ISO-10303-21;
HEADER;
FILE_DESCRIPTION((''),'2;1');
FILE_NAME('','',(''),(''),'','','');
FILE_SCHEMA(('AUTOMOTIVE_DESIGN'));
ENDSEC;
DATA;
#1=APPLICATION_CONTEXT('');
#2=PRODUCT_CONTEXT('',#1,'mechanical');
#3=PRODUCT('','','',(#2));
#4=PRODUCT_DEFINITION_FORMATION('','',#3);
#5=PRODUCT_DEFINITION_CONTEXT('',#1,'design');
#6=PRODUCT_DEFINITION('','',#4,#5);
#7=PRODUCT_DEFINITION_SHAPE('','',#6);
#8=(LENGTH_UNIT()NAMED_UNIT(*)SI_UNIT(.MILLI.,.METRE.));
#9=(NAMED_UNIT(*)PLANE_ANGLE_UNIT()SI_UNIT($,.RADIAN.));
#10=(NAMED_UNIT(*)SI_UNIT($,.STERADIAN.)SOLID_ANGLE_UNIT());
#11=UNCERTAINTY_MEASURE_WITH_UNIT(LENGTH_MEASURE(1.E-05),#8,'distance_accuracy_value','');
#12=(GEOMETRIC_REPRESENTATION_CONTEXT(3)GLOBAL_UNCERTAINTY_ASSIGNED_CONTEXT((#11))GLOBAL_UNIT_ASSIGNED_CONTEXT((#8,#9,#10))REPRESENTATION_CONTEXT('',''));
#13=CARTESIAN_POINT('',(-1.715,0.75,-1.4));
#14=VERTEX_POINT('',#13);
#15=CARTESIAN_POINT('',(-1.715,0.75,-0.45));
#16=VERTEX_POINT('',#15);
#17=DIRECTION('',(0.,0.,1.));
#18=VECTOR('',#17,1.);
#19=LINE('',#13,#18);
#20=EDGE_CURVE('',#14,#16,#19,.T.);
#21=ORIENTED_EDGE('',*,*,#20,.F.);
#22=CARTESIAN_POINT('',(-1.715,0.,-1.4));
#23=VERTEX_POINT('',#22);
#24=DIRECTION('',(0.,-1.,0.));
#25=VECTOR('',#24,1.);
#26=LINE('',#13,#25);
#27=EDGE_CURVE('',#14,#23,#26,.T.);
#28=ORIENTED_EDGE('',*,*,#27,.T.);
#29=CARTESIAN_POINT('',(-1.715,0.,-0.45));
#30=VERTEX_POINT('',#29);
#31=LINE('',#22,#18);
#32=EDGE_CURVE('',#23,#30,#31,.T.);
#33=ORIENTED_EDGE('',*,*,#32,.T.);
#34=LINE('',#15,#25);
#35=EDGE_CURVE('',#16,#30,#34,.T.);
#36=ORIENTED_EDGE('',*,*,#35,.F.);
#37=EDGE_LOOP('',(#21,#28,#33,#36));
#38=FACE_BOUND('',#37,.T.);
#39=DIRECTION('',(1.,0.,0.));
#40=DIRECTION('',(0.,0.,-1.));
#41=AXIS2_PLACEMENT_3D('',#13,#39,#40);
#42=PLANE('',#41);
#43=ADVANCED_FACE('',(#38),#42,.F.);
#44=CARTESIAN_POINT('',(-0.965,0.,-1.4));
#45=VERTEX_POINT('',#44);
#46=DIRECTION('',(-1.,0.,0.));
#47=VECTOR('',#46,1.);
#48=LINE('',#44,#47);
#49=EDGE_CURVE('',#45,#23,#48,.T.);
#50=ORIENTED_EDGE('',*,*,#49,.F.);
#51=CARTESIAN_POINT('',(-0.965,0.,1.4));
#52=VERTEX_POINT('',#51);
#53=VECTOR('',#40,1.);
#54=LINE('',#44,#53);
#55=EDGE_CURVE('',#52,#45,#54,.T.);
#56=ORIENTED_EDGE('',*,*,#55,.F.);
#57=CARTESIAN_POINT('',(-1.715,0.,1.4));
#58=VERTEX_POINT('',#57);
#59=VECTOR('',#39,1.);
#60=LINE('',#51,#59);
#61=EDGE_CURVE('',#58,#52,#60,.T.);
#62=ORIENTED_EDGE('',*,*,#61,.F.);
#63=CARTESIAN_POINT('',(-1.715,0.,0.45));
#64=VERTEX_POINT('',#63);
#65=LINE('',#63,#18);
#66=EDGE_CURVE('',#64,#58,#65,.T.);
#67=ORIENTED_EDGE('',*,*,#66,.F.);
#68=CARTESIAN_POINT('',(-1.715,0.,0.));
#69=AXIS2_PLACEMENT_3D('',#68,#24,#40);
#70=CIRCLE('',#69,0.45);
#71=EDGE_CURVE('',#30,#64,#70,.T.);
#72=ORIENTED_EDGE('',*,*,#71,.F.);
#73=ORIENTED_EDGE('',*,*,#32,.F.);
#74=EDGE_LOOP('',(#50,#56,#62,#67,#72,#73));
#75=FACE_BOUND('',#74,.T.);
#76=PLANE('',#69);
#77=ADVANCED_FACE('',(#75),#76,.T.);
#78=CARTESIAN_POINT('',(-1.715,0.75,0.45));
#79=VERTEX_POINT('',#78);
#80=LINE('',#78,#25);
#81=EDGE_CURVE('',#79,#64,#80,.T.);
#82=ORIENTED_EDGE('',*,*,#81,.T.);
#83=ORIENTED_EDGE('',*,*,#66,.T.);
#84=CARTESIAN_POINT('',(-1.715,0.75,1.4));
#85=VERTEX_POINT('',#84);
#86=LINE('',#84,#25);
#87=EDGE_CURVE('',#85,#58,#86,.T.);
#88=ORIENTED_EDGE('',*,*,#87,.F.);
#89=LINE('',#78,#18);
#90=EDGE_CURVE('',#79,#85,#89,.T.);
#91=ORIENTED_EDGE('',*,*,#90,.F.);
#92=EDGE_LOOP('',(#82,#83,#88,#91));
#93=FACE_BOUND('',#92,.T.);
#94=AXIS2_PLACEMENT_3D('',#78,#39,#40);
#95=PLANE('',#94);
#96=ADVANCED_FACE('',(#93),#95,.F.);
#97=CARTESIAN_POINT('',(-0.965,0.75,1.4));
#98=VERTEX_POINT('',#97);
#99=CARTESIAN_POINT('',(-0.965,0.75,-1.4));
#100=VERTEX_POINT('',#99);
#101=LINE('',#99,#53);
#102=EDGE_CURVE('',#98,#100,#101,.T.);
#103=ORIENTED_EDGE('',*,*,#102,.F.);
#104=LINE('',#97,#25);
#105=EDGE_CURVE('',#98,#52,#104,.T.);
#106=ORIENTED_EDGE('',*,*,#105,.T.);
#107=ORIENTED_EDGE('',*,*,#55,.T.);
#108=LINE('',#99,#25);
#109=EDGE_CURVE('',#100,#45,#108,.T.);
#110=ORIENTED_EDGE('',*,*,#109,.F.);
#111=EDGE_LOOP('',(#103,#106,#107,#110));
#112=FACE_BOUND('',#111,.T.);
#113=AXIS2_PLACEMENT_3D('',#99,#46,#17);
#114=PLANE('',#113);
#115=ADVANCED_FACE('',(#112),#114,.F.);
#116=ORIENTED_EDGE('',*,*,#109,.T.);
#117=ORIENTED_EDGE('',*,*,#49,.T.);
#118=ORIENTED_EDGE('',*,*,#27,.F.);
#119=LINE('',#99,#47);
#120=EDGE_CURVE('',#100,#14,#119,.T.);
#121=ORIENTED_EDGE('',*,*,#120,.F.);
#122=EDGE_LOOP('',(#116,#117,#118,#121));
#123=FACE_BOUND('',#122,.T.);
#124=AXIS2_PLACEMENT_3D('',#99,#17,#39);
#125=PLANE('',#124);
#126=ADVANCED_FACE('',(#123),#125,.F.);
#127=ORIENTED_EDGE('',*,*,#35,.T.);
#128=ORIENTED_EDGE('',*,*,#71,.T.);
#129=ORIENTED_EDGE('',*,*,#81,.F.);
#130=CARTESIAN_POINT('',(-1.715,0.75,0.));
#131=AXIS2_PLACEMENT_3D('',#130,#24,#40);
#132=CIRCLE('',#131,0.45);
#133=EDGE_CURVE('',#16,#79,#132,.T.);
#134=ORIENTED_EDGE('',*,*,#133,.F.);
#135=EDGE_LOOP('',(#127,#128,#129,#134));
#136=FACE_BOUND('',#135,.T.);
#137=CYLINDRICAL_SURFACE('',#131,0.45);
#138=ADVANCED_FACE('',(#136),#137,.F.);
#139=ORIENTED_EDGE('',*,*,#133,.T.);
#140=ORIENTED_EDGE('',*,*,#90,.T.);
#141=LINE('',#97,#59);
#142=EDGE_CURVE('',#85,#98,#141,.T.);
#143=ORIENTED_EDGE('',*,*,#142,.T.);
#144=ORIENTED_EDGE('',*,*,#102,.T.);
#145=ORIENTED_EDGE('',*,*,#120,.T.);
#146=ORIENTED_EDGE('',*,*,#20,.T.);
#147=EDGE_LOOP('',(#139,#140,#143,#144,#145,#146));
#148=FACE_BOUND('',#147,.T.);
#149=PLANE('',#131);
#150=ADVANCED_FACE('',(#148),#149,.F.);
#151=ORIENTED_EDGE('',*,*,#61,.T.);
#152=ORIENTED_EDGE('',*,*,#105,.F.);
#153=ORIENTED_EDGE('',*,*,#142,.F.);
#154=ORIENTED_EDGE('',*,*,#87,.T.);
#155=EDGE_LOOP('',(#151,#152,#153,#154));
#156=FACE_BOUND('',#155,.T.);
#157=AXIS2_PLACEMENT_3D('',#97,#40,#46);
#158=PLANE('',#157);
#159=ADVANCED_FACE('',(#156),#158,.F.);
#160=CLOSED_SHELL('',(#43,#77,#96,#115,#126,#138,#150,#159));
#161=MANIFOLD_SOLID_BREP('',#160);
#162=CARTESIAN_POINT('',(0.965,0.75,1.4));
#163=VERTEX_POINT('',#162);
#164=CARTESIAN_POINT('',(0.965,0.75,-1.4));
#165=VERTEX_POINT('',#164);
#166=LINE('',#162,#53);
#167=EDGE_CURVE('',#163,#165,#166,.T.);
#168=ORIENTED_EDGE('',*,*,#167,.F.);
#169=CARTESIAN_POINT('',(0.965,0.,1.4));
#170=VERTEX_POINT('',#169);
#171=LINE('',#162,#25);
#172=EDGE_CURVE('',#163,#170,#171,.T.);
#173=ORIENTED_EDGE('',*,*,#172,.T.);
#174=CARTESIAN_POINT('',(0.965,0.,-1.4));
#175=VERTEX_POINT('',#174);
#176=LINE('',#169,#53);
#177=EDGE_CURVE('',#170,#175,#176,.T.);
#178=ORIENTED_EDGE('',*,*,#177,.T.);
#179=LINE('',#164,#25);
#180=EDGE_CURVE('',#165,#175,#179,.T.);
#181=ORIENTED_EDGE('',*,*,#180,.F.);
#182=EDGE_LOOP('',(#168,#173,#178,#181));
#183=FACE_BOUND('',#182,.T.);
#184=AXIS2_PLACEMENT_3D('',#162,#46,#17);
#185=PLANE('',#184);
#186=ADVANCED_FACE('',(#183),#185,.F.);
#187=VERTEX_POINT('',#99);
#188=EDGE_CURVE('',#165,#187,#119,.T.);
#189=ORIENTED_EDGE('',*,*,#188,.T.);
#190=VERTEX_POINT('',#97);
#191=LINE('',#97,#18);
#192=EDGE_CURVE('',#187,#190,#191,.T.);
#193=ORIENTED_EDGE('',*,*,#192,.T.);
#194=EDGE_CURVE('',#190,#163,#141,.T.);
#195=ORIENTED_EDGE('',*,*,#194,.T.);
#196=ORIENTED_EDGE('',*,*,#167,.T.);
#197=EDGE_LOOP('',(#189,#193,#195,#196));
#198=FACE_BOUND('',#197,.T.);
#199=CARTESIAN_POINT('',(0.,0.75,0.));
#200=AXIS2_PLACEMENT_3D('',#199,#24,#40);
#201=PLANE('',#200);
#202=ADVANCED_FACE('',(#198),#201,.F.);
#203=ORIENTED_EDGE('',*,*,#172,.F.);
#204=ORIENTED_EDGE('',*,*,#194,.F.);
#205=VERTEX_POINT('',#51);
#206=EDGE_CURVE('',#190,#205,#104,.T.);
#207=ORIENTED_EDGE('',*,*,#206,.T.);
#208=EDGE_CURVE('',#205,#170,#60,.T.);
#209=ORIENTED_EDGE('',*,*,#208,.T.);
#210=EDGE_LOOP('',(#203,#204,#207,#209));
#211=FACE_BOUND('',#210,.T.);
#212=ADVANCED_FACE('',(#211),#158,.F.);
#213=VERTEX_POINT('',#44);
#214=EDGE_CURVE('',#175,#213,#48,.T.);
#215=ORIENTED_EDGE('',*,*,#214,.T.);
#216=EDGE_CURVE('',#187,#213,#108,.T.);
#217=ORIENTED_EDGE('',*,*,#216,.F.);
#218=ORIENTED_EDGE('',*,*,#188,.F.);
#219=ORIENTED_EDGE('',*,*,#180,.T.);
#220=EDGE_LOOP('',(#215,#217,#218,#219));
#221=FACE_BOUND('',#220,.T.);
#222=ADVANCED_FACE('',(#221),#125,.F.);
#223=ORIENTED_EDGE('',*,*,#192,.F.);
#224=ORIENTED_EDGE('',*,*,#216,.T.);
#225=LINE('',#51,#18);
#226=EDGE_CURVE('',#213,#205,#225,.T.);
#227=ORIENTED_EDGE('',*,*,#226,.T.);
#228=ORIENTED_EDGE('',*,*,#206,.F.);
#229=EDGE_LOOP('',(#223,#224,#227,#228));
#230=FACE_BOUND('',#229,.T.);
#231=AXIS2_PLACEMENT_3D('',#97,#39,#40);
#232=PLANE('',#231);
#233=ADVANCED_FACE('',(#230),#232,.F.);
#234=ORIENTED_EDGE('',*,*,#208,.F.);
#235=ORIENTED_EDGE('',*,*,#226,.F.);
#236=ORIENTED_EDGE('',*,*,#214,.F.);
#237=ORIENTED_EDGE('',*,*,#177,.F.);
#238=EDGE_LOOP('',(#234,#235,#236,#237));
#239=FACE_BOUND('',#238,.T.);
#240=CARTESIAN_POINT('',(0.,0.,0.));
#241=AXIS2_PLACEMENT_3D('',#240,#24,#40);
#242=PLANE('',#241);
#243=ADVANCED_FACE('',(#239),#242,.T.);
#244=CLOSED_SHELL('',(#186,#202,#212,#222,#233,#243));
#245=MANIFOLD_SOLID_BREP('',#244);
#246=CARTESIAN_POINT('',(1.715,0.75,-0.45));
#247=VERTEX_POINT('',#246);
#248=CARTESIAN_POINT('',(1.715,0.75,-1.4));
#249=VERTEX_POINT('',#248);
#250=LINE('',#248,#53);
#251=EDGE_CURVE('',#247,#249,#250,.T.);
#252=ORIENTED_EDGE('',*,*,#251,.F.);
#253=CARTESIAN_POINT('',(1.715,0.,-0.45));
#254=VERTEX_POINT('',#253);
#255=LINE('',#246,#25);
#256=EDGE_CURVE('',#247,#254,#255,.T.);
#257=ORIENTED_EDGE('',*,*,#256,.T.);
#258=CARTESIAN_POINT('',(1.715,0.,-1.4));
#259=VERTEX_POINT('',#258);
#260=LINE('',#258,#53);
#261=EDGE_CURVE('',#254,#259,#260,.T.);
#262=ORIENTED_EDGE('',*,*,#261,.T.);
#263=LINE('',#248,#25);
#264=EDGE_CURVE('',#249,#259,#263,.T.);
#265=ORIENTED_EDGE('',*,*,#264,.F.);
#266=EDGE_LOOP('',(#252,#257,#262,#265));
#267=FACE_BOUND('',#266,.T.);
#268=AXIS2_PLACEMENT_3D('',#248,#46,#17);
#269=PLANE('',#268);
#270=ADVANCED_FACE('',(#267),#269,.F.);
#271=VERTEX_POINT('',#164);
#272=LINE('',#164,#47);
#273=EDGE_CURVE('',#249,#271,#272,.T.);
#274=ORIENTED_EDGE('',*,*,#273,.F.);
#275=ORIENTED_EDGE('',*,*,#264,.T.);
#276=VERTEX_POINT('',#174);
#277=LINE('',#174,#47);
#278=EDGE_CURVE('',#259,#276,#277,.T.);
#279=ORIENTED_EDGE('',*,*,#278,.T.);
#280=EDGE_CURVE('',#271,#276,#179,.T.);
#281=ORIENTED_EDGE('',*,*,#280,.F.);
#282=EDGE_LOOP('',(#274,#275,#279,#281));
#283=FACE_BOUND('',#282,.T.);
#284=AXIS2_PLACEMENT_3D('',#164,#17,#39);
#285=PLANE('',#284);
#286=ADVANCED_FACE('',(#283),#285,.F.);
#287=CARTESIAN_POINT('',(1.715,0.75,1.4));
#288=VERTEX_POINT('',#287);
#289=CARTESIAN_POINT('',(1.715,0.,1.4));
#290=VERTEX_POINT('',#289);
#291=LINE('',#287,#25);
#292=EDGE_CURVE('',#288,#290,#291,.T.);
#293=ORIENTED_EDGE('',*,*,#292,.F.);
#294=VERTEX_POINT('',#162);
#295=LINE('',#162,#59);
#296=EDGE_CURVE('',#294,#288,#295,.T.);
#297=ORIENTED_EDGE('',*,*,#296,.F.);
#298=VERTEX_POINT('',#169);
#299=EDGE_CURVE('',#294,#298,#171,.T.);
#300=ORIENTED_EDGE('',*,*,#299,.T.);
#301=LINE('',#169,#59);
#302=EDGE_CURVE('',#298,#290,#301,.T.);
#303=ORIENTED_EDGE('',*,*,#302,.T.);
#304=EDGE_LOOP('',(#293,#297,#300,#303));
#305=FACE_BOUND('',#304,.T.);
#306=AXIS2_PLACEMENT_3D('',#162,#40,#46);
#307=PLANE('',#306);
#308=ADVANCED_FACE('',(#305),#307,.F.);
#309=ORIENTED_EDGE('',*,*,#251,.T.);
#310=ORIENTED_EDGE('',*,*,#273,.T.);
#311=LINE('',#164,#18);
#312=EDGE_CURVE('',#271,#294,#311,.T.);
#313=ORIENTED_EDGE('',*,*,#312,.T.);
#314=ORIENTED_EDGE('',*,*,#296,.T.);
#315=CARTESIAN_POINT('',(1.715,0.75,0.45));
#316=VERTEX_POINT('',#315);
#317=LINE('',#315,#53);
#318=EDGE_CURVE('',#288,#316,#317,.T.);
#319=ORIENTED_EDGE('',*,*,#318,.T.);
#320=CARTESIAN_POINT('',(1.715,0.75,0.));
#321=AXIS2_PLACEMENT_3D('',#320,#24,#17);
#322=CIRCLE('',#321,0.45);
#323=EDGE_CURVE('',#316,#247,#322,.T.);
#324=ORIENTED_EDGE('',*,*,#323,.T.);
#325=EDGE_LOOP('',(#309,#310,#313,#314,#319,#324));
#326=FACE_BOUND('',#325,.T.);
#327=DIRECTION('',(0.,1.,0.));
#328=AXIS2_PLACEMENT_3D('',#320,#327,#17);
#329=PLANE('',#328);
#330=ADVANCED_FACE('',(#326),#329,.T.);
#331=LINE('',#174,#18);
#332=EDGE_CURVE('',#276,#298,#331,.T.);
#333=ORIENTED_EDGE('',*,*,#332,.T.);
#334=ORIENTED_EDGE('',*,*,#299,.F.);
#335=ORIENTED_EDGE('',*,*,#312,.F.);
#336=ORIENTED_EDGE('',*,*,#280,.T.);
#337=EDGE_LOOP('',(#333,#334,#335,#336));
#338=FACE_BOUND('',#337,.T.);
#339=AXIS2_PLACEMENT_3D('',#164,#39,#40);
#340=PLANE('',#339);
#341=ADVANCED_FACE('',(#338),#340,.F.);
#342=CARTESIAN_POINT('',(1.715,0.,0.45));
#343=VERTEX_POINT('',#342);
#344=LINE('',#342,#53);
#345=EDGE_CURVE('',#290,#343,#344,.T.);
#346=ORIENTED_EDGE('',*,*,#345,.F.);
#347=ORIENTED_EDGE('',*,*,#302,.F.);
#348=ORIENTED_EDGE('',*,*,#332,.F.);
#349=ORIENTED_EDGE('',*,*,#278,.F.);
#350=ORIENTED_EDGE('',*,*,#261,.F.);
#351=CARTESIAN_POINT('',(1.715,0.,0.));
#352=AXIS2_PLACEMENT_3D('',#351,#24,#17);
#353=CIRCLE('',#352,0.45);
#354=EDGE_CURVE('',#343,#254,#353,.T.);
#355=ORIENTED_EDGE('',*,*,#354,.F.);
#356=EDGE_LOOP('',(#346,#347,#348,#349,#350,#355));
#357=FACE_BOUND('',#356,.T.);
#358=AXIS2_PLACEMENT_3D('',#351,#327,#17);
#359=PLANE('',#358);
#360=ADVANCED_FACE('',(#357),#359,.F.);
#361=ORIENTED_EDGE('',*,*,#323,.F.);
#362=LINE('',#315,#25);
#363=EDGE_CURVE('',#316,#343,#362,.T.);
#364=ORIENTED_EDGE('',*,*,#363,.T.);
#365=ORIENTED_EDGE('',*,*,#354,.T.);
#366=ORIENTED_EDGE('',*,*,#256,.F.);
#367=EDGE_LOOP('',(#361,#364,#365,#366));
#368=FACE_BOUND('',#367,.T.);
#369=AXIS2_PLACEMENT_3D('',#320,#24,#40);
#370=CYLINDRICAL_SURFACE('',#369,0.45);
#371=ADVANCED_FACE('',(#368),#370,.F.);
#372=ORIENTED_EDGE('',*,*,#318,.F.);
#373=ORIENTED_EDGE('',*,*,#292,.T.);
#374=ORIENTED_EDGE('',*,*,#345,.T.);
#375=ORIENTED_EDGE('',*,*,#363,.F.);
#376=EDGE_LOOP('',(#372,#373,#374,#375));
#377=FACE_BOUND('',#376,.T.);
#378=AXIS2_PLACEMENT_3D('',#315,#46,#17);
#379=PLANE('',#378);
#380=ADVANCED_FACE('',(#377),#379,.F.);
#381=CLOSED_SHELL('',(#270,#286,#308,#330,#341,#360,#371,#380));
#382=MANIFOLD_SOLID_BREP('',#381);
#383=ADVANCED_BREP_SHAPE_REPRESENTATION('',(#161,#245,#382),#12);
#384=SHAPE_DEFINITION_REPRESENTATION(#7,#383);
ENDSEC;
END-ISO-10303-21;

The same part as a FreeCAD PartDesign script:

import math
import FreeCAD as App
import Part
import Sketcher

V = App.Vector
Q = App.Units.Quantity

doc = App.newDocument("Part")
body = doc.addObject("PartDesign::Body", "Body")

# Sketch on XZ plane
sketch1 = doc.addObject("Sketcher::SketchObject", "Sketch")
body.addObject(sketch1)
sketch1.AttachmentSupport = (doc.XZ_Plane, [""])
sketch1.MapMode = "FlatFace"
sketch1.addGeometry([
    Part.LineSegment(V(-0.965, -1.4, 0), V(-0.965, 1.4, 0)),
    Part.LineSegment(V(-0.965, 1.4, 0), V(0.965, 1.4, 0)),
    Part.LineSegment(V(0.965, 1.4, 0), V(0.965, -1.4, 0)),
    Part.LineSegment(V(0.965, -1.4, 0), V(-0.965, -1.4, 0)),
], False)
sketch1.addConstraint([
    Sketcher.Constraint("Coincident", 0, 2, 1, 1),
    Sketcher.Constraint("Coincident", 1, 2, 2, 1),
    Sketcher.Constraint("Coincident", 2, 2, 3, 1),
    Sketcher.Constraint("Coincident", 3, 2, 0, 1),
    Sketcher.Constraint("Vertical", 0),
    Sketcher.Constraint("Horizontal", 1),
    Sketcher.Constraint("Vertical", 2),
    Sketcher.Constraint("Horizontal", 3),
    Sketcher.Constraint("Symmetric", 0, 2, 2, 2, -1, 1),
    Sketcher.Constraint("DistanceY", 0, 1, 0, 2, Q("2.8 mm")),
    Sketcher.Constraint("DistanceX", 1, 1, 1, 2, Q("1.93 mm")),
])
pad1 = doc.addObject("PartDesign::Pad", "Pad")
body.addObject(pad1)
pad1.Profile = sketch1
pad1.Length = 0.75
pad1.Reversed = True
body2 = doc.addObject("PartDesign::Body", "Body001")

# Sketch on XZ plane
sketch2 = doc.addObject("Sketcher::SketchObject", "Sketch001")
body2.addObject(sketch2)
sketch2.AttachmentSupport = (doc.getObject("XZ_Plane001"), [""])
sketch2.MapMode = "FlatFace"
sketch2.addGeometry([
    Part.LineSegment(V(1.715, 1.4, 0), V(1.715, 0.45, 0)),  # 0
    Part.ArcOfCircle(Part.Circle(V(1.715, 0, 0), V(0, 0, 1), 0.45), math.radians(90), math.radians(270)),  # 1
    Part.LineSegment(V(1.715, -0.45, 0), V(1.715, -1.4, 0)),  # 2
    Part.LineSegment(V(1.715, -1.4, 0), V(0.965, -1.4, 0)),  # 3
    Part.LineSegment(V(0.965, -1.4, 0), V(0.965, 1.4, 0)),  # 4
    Part.LineSegment(V(0.965, 1.4, 0), V(1.715, 1.4, 0)),  # 5
], False)
sketch2.addConstraint([
    Sketcher.Constraint("Coincident", 0, 2, 1, 1),
    Sketcher.Constraint("Coincident", 1, 2, 2, 1),
    Sketcher.Constraint("Coincident", 2, 2, 3, 1),
    Sketcher.Constraint("Coincident", 3, 2, 4, 1),
    Sketcher.Constraint("Coincident", 4, 2, 5, 1),
    Sketcher.Constraint("Coincident", 5, 2, 0, 1),
    Sketcher.Constraint("Vertical", 0),
    Sketcher.Constraint("Vertical", 2),
    Sketcher.Constraint("Horizontal", 3),
    Sketcher.Constraint("Vertical", 4),
    Sketcher.Constraint("Horizontal", 5),
    Sketcher.Constraint("Symmetric", 0, 2, 1, 2, -1),
    Sketcher.Constraint("Vertical", 1, 3, 0, 2),
    Sketcher.Constraint("Equal", 0, 2),
    Sketcher.Constraint("Radius", 1, Q("0.45 mm")),
    Sketcher.Constraint("DistanceY", 4, 1, 4, 2, Q("2.8 mm")),
    Sketcher.Constraint("DistanceX", 3, 2, 3, 1, Q("0.75 mm")),
    Sketcher.Constraint("DistanceX", -1, 1, 1, 3, Q("1.715 mm")),
])
pad2 = doc.addObject("PartDesign::Pad", "Pad001")
body2.addObject(pad2)
pad2.Profile = sketch2
pad2.Length = 0.75
pad2.Reversed = True
body3 = doc.addObject("PartDesign::Body", "Body002")

# Sketch on XZ plane
sketch3 = doc.addObject("Sketcher::SketchObject", "Sketch002")
body3.addObject(sketch3)
sketch3.AttachmentSupport = (doc.getObject("XZ_Plane002"), [""])
sketch3.MapMode = "FlatFace"
sketch3.addGeometry([
    Part.LineSegment(V(-0.965, 1.4, 0), V(-0.965, -1.4, 0)),  # 0
    Part.LineSegment(V(-0.965, -1.4, 0), V(-1.715, -1.4, 0)),  # 1
    Part.LineSegment(V(-1.715, -1.4, 0), V(-1.715, -0.45, 0)),  # 2
    Part.ArcOfCircle(Part.Circle(V(-1.715, 0, 0), V(0, 0, 1), 0.45), math.radians(-90), math.radians(90)),  # 3
    Part.LineSegment(V(-1.715, 0.45, 0), V(-1.715, 1.4, 0)),  # 4
    Part.LineSegment(V(-1.715, 1.4, 0), V(-0.965, 1.4, 0)),  # 5
], False)
sketch3.addConstraint([
    Sketcher.Constraint("Coincident", 0, 2, 1, 1),
    Sketcher.Constraint("Coincident", 1, 2, 2, 1),
    Sketcher.Constraint("Coincident", 2, 2, 3, 1),
    Sketcher.Constraint("Coincident", 3, 2, 4, 1),
    Sketcher.Constraint("Coincident", 4, 2, 5, 1),
    Sketcher.Constraint("Coincident", 5, 2, 0, 1),
    Sketcher.Constraint("Vertical", 0),
    Sketcher.Constraint("Horizontal", 1),
    Sketcher.Constraint("Vertical", 2),
    Sketcher.Constraint("Vertical", 4),
    Sketcher.Constraint("Horizontal", 5),
    Sketcher.Constraint("Symmetric", 2, 2, 3, 2, -1),
    Sketcher.Constraint("Vertical", 3, 3, 1, 2),
    Sketcher.Constraint("Equal", 2, 4),
    Sketcher.Constraint("Radius", 3, Q("0.45 mm")),
    Sketcher.Constraint("DistanceY", 0, 2, 0, 1, Q("2.8 mm")),
    Sketcher.Constraint("DistanceX", 1, 2, 1, 1, Q("0.75 mm")),
    Sketcher.Constraint("DistanceX", 3, 3, -1, 1, Q("1.715 mm")),
])
pad3 = doc.addObject("PartDesign::Pad", "Pad002")
body3.addObject(pad3)
pad3.Profile = sketch3
pad3.Length = 0.75
pad3.Reversed = True

doc.recompute()
